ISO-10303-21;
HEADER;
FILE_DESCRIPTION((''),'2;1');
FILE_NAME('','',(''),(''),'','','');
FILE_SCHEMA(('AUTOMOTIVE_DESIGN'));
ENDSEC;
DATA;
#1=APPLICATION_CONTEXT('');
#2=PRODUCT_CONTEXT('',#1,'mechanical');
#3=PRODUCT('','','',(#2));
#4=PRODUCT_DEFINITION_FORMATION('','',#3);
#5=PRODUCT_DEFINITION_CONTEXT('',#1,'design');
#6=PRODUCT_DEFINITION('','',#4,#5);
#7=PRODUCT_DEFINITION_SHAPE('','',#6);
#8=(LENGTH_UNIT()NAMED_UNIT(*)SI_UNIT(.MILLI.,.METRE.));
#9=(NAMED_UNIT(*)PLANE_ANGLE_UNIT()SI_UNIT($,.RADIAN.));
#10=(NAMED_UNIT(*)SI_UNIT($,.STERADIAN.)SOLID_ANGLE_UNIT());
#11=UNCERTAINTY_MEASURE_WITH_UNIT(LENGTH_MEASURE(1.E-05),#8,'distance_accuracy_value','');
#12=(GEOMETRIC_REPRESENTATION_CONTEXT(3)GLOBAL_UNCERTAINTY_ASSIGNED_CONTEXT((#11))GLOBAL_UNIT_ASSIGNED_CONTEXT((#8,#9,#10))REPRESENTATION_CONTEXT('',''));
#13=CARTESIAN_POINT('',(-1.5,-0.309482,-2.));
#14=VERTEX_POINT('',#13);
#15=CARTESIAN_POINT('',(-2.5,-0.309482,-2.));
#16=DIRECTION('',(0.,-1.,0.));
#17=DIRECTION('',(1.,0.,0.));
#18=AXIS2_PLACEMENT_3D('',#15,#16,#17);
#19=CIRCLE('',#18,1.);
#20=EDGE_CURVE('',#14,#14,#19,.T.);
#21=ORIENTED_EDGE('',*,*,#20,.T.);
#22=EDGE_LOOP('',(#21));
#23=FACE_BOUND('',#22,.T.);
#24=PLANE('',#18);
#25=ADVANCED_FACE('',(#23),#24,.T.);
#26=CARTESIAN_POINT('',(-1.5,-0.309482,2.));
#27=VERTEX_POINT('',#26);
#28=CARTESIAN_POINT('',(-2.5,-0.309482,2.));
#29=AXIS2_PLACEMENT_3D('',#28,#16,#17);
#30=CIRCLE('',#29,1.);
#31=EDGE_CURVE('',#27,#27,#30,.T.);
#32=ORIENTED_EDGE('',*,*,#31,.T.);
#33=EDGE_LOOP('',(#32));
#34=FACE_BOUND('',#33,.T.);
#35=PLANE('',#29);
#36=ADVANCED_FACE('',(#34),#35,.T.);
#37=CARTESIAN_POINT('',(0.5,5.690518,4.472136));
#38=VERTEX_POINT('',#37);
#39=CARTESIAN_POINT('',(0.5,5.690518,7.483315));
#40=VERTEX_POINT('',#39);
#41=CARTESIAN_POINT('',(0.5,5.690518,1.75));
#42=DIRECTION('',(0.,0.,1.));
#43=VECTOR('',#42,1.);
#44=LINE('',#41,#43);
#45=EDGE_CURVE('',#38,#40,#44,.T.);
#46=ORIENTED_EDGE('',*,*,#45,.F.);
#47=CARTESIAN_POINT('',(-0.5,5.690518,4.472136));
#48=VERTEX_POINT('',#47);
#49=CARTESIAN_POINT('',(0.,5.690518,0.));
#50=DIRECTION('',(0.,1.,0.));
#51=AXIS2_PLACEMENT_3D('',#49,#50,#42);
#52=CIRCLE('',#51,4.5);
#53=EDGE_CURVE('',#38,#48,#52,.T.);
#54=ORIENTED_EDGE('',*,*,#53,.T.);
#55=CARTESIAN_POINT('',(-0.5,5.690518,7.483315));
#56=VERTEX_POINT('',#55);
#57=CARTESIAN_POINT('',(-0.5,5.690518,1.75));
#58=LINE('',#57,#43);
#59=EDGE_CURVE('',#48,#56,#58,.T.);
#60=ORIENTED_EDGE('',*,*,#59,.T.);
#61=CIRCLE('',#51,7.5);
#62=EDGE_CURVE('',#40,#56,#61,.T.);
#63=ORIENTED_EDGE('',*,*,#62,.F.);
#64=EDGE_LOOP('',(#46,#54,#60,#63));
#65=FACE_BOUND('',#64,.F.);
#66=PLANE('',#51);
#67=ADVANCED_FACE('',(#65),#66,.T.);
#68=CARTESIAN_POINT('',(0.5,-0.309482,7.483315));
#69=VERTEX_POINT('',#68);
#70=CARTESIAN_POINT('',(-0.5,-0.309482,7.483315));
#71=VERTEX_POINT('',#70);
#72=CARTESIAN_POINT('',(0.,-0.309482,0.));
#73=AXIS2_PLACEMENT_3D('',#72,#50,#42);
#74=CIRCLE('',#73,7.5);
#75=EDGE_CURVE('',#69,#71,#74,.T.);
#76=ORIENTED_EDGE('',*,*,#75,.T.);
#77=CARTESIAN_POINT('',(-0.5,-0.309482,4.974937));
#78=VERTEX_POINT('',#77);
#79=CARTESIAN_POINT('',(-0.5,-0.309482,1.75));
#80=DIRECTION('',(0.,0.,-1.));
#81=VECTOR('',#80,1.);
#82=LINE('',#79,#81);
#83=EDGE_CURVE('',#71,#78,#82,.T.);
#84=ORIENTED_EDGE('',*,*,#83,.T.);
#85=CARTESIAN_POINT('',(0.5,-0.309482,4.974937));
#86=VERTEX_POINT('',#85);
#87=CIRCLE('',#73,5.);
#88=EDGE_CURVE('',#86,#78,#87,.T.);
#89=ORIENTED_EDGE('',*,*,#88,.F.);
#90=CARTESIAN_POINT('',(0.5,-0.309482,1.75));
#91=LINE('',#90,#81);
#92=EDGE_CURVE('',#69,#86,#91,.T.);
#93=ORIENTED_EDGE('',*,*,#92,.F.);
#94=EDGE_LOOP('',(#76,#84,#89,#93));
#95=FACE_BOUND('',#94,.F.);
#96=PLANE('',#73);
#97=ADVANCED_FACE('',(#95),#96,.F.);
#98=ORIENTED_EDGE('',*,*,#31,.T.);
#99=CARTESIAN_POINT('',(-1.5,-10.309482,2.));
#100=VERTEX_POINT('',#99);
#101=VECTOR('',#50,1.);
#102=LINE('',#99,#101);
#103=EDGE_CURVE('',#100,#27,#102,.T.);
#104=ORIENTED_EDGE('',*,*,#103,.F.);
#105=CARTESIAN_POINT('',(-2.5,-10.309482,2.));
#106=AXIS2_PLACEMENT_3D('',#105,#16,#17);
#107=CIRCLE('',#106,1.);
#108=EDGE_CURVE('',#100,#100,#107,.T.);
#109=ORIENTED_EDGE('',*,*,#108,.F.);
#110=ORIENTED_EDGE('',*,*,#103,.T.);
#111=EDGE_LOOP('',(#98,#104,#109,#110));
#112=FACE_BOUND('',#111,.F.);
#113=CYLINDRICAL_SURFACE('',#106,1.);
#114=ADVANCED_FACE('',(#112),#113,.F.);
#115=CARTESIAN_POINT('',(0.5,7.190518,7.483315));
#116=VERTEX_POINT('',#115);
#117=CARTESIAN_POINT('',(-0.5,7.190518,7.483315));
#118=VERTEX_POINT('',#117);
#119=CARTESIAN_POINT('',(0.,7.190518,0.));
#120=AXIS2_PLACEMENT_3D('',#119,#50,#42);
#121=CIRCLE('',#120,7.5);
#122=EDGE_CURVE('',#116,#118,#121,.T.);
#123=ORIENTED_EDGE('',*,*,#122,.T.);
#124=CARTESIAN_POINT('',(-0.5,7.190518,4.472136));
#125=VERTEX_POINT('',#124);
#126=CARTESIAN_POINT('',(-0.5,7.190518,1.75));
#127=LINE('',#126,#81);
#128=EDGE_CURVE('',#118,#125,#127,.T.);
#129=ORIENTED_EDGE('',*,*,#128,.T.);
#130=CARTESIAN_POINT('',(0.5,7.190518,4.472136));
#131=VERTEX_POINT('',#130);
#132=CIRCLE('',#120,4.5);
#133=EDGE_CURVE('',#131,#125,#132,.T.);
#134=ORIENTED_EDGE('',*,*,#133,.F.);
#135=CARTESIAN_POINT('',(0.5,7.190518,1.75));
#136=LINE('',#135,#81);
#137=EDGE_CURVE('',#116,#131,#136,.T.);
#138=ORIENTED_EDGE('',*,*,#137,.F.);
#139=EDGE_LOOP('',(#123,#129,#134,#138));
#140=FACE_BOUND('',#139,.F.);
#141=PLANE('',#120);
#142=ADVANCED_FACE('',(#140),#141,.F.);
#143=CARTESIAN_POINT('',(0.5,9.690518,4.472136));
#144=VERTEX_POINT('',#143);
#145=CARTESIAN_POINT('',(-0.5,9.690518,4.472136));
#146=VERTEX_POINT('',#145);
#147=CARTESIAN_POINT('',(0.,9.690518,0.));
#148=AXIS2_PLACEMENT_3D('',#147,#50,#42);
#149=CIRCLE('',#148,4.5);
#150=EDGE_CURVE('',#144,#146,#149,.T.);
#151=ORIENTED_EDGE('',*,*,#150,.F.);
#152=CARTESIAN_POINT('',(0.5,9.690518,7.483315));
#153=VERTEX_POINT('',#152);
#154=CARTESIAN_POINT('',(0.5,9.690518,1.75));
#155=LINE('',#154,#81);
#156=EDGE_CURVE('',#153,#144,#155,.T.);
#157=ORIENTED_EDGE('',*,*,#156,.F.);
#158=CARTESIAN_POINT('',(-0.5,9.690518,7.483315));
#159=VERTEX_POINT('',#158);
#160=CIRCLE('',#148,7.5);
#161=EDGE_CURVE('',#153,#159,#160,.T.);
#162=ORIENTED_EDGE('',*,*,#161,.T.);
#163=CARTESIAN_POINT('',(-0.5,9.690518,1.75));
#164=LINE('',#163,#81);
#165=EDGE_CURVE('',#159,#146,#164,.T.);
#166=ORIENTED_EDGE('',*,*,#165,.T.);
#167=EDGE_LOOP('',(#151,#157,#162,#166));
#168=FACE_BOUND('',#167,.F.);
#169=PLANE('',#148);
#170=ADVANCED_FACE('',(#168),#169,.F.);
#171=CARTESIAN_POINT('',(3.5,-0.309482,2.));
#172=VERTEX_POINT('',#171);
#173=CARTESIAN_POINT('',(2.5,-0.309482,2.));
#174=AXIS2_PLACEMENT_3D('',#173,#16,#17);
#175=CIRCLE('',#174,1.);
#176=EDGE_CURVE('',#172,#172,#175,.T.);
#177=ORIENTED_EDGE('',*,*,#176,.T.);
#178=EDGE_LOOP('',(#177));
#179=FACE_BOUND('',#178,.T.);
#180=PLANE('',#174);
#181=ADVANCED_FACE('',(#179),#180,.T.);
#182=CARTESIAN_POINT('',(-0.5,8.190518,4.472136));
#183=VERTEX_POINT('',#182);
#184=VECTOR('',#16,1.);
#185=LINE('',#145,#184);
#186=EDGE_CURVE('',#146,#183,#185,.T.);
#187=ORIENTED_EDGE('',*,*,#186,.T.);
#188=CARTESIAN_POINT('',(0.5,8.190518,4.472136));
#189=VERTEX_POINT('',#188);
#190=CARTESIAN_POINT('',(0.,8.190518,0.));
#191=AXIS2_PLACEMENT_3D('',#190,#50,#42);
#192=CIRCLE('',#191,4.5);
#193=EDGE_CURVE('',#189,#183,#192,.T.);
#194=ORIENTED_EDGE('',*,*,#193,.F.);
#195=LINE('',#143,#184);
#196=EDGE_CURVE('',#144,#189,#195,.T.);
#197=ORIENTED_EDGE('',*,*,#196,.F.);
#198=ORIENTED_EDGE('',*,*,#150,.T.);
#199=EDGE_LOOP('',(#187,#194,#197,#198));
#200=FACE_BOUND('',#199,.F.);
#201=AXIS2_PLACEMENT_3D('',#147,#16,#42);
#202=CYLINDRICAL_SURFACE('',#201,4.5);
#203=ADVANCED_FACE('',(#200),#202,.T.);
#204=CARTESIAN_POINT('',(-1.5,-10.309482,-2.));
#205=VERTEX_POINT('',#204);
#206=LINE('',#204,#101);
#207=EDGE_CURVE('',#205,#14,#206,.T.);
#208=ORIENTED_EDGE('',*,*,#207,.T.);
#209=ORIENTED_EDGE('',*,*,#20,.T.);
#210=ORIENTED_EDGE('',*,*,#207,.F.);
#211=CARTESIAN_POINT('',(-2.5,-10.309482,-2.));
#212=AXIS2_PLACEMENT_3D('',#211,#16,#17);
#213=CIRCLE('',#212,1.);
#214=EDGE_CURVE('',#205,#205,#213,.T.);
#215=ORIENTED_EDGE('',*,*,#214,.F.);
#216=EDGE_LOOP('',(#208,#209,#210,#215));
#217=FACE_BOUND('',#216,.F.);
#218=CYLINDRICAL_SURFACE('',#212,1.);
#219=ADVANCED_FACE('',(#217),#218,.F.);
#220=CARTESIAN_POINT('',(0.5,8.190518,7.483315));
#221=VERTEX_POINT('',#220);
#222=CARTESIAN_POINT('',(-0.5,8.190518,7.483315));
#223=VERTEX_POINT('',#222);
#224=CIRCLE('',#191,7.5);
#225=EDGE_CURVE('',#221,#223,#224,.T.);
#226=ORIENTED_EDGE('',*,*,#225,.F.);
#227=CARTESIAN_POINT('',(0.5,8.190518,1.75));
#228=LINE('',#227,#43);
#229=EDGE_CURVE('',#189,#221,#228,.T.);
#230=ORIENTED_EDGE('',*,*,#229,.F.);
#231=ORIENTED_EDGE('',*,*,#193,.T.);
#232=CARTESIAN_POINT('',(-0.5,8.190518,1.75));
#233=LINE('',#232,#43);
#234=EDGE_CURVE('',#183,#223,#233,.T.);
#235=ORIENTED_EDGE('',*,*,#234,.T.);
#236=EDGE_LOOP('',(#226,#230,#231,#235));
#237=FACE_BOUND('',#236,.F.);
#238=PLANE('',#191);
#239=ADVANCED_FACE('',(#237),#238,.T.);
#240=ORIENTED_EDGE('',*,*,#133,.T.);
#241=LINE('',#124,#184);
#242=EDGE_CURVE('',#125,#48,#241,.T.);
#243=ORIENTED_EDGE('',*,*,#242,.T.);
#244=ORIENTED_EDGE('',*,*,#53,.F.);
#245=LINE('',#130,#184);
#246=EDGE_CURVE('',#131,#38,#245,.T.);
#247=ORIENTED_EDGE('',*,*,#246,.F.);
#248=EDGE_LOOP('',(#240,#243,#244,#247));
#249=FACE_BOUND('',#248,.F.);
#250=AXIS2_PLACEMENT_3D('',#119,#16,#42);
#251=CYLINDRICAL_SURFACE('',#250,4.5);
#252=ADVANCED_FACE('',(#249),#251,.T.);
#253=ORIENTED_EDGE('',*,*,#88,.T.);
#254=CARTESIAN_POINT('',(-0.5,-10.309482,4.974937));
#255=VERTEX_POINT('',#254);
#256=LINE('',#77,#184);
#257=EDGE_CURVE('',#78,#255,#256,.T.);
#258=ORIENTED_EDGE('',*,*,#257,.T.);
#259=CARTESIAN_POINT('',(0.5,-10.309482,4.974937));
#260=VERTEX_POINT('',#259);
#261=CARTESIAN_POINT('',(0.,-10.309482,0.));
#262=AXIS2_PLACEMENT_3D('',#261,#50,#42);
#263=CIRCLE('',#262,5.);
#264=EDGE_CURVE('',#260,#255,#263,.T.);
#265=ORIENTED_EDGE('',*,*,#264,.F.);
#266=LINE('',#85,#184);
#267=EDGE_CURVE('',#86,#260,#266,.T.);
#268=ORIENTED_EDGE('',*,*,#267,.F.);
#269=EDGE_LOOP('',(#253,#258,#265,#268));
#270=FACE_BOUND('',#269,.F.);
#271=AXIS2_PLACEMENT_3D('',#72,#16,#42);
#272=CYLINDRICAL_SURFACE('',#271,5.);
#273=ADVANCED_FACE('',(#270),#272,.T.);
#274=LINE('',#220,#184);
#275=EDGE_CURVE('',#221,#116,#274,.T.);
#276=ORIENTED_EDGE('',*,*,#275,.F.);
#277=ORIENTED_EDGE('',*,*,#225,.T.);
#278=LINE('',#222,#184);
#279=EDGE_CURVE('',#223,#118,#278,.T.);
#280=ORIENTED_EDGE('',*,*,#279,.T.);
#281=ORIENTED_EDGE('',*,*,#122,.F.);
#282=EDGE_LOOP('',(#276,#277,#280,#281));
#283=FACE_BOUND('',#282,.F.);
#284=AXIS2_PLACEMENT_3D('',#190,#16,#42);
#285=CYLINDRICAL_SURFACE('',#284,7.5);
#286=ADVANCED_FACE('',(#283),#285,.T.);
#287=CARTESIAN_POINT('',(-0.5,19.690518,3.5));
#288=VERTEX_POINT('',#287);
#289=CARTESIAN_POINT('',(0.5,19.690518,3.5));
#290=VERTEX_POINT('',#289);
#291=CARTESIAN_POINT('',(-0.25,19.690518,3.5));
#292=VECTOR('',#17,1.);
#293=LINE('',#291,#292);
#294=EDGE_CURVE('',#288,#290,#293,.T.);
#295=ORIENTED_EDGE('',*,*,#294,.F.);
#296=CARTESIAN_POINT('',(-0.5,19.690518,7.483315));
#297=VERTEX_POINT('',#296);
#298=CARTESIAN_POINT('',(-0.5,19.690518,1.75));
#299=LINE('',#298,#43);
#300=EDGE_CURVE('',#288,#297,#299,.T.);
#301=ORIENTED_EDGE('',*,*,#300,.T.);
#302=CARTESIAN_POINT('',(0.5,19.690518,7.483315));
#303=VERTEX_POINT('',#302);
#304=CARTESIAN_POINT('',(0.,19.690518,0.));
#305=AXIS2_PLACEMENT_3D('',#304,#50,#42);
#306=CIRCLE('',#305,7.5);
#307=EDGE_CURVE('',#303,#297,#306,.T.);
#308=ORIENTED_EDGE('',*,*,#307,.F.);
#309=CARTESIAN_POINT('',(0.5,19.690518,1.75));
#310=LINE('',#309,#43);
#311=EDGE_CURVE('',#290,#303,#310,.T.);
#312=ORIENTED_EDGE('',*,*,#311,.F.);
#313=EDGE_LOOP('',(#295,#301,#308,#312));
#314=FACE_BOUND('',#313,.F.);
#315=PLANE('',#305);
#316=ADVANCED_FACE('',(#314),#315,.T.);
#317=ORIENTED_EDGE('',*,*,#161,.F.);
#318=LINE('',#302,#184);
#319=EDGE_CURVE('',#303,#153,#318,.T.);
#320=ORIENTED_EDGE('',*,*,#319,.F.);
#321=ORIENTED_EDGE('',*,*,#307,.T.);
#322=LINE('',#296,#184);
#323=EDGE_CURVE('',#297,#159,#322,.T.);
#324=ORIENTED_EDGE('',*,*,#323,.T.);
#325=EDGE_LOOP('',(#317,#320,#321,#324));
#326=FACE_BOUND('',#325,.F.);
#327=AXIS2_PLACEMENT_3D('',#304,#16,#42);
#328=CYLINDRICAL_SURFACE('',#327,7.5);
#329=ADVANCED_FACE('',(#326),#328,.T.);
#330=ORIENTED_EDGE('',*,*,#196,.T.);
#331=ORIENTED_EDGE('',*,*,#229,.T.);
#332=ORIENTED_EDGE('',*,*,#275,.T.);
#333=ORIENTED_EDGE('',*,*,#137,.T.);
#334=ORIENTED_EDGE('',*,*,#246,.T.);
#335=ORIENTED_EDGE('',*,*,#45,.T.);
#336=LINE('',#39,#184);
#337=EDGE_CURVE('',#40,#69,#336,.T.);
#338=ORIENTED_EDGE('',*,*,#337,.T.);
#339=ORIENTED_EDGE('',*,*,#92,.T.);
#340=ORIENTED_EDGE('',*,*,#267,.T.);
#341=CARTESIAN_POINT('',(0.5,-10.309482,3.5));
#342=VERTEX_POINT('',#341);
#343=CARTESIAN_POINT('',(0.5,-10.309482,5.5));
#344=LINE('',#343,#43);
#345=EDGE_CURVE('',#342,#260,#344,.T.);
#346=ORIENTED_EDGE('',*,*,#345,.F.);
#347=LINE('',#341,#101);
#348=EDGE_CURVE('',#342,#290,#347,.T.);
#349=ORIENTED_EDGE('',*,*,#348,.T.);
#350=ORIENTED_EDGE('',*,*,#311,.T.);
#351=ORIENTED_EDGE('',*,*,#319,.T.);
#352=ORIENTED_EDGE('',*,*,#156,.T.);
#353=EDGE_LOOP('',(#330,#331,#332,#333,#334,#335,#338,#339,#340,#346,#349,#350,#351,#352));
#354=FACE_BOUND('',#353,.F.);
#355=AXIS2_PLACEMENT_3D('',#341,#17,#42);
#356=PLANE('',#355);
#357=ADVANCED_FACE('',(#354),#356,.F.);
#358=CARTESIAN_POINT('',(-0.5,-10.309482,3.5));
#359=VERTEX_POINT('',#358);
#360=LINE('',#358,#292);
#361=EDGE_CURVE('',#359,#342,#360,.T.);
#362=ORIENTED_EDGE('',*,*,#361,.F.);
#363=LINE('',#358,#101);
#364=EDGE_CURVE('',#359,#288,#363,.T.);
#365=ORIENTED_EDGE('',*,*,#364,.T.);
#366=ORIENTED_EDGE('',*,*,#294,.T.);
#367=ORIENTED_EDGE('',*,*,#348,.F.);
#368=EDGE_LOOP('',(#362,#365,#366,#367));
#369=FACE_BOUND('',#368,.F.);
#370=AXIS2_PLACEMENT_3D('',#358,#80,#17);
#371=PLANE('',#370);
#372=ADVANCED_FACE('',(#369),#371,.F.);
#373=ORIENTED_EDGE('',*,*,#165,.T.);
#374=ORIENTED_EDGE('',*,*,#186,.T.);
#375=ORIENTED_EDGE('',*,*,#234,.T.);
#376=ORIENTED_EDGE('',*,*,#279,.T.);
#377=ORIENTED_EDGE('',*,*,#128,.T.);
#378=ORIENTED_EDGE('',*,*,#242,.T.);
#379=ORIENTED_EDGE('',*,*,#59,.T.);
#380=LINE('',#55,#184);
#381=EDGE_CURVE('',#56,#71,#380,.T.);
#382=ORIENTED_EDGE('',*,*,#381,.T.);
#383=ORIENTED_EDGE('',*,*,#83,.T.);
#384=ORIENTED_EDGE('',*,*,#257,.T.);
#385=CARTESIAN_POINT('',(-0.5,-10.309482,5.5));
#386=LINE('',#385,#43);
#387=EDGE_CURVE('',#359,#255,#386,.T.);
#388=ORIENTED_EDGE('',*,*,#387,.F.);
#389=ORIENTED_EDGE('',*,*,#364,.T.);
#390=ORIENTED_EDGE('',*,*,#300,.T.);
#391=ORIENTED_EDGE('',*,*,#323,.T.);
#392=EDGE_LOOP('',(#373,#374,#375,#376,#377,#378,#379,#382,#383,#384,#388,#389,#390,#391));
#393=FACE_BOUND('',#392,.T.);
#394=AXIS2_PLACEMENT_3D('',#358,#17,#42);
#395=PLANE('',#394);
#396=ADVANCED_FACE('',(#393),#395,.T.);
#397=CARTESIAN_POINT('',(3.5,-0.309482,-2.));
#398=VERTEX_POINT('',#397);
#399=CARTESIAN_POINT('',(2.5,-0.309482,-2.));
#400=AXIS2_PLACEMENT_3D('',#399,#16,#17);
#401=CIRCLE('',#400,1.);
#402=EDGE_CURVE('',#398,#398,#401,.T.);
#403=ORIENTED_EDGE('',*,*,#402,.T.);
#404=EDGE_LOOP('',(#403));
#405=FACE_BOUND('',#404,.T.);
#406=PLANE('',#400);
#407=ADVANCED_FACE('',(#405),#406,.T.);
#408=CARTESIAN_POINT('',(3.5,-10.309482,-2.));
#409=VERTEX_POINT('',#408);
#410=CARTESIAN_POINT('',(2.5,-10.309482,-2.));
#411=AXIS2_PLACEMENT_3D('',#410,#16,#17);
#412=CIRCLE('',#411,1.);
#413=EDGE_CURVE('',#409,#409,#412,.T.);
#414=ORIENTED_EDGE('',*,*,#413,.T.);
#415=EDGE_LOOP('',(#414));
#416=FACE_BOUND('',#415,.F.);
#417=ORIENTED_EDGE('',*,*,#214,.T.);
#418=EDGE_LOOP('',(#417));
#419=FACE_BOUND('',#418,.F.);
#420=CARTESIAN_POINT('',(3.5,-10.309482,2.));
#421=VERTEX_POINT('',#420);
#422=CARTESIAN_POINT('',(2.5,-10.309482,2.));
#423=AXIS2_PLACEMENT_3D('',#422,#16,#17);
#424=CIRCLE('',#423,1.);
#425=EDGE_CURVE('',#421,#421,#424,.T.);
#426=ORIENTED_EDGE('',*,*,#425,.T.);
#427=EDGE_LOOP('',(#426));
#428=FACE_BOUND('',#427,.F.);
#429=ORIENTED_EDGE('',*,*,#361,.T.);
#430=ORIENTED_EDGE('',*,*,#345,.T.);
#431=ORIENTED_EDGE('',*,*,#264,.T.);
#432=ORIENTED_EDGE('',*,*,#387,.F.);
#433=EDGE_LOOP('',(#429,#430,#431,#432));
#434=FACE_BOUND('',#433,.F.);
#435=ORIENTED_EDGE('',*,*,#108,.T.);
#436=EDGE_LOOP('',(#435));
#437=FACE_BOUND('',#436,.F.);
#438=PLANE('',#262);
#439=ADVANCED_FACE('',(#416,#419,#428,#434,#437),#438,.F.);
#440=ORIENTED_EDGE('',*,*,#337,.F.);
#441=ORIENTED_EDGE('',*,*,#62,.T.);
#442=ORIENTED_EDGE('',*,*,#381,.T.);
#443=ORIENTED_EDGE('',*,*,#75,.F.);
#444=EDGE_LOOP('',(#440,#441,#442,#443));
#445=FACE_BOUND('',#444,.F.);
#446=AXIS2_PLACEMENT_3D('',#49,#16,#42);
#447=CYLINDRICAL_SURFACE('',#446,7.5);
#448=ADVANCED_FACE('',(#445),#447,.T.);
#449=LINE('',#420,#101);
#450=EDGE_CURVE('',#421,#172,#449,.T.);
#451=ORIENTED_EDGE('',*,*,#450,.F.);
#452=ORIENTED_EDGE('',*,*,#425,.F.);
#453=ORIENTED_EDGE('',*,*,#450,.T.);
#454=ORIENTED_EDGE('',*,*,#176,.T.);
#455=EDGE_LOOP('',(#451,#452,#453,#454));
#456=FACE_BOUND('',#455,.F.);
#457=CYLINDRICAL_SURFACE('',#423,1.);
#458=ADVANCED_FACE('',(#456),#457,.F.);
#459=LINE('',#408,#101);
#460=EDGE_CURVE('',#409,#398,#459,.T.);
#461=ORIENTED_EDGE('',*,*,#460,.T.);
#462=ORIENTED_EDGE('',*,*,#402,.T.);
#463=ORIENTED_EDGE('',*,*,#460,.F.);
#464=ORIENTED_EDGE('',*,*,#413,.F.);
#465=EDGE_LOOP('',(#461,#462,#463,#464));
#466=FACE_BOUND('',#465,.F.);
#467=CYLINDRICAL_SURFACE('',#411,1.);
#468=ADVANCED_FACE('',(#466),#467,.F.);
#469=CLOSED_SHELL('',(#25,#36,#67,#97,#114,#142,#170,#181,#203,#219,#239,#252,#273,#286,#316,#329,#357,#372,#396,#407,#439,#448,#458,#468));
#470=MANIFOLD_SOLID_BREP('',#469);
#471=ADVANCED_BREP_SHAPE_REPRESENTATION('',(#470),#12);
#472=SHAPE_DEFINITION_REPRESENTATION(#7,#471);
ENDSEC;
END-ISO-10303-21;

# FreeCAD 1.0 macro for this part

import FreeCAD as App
import Part
import Sketcher
from FreeCAD import Vector
Q = App.Units.Quantity


def add_polygon(sketch, points):
    """Adds a closed chain of lines whose ends are joined by coincident constraints."""
    first, n = sketch.GeometryCount, len(points)
    for a, b in zip(points, points[1:] + points[:1]):
        sketch.addGeometry(Part.LineSegment(App.Vector(*a, 0), App.Vector(*b, 0)), False)
    for i in range(n):
        sketch.addConstraint(Sketcher.Constraint("Coincident", first + i, 2, first + (i + 1) % n, 1))

doc = App.newDocument("Part")
body = doc.addObject("PartDesign::Body", "Body")

# Sketch on YZ plane
sketch1 = doc.addObject("Sketcher::SketchObject", "Sketch")
body.addObject(sketch1)
sketch1.AttachmentSupport = (doc.YZ_Plane, [""])
sketch1.MapMode = "FlatFace"
add_polygon(sketch1, [(5.7, 7.5), (-0.3, 7.5), (-0.3, 5), (-10.3, 5), (-10.3, 0), (19.7, 0), (19.7, 7.5), (9.7, 7.5), (9.7, 4.5), (8.2, 4.5), (8.2, 7.5), (7.2, 7.5), (7.2, 4.5), (5.7, 4.5)])  # lines 0-13
sketch1.addConstraint([
    Sketcher.Constraint("Horizontal", 0),
    Sketcher.Constraint("Vertical", 1),
    Sketcher.Constraint("Horizontal", 2),
    Sketcher.Constraint("Vertical", 3),
    Sketcher.Constraint("Horizontal", 4),
    Sketcher.Constraint("Vertical", 5),
    Sketcher.Constraint("Horizontal", 6),
    Sketcher.Constraint("Vertical", 7),
    Sketcher.Constraint("Horizontal", 8),
    Sketcher.Constraint("Vertical", 9),
    Sketcher.Constraint("Horizontal", 10),
    Sketcher.Constraint("Vertical", 11),
    Sketcher.Constraint("Horizontal", 12),
    Sketcher.Constraint("Vertical", 13),
    Sketcher.Constraint("PointOnObject", 3, 2, -1),
    Sketcher.Constraint("Horizontal", 0, 2, 5, 2),
    Sketcher.Constraint("Horizontal", 6, 2, 9, 2),
    Sketcher.Constraint("Horizontal", 8, 2, 11, 2),
    Sketcher.Constraint("Equal", 2, 6),
    Sketcher.Constraint("Equal", 8, 12),
    Sketcher.Constraint("DistanceX", 0, 2, 0, 1, Q("6 mm")),
    Sketcher.Constraint("DistanceX", 2, 2, 2, 1, Q("10 mm")),
    Sketcher.Constraint("DistanceX", 4, 1, 4, 2, Q("30 mm")),
    Sketcher.Constraint("DistanceX", 10, 2, 10, 1, Q("1 mm")),
    Sketcher.Constraint("DistanceY", 3, 2, 3, 1, Q("5 mm")),
    Sketcher.Constraint("DistanceY", 7, 2, 7, 1, Q("3 mm")),
    Sketcher.Constraint("DistanceY", 1, 2, 1, 1, Q("2.5 mm")),
    Sketcher.Constraint("DistanceX", 2, 2, -1, 1, Q("10.309482 mm")),
])
revolution = doc.addObject("PartDesign::Revolution", "Revolution")
body.addObject(revolution)
revolution.Profile = sketch1
revolution.ReferenceAxis = (sketch1, ["H_Axis"])
revolution.Angle = 360

# Sketch on XZ plane
sketch2 = doc.addObject("Sketcher::SketchObject", "Sketch001")
body.addObject(sketch2)
sketch2.AttachmentSupport = (doc.XZ_Plane, [""])
sketch2.MapMode = "FlatFace"
sketch2.AttachmentOffset = App.Placement(Vector(0, 0, 10.309482), App.Rotation())
sketch2.addGeometry([
    Part.Circle(Vector(-2.5, 2, 0), Vector(0, 0, 1), 1),
    Part.Circle(Vector(2.5, 2, 0), Vector(0, 0, 1), 1),
    Part.Circle(Vector(-2.5, -2, 0), Vector(0, 0, 1), 1),
    Part.Circle(Vector(2.5, -2, 0), Vector(0, 0, 1), 1),
], False)
sketch2.addConstraint([
    Sketcher.Constraint("Equal", 0, 1),
    Sketcher.Constraint("Equal", 1, 2),
    Sketcher.Constraint("Equal", 2, 3),
    Sketcher.Constraint("Symmetric", 1, 3, 2, 3, -1, 1),
    Sketcher.Constraint("Symmetric", 0, 3, 3, 3, -1, 1),
    Sketcher.Constraint("Symmetric", 0, 3, 1, 3, -2),
    Sketcher.Constraint("Diameter", 0, Q("2 mm")),
    Sketcher.Constraint("DistanceY", -1, 1, 0, 3, Q("2 mm")),
    Sketcher.Constraint("DistanceX", 0, 3, 1, 3, Q("5 mm")),
])
pocket1 = doc.addObject("PartDesign::Pocket", "Pocket")
body.addObject(pocket1)
pocket1.Profile = sketch2
pocket1.Length = 10

# Sketch on XZ plane
sketch3 = doc.addObject("Sketcher::SketchObject", "Sketch002")
body.addObject(sketch3)
sketch3.AttachmentSupport = (doc.XZ_Plane, [""])
sketch3.MapMode = "FlatFace"
sketch3.AttachmentOffset = App.Placement(Vector(0, 0, 10.309482), App.Rotation())
add_polygon(sketch3, [(-0.5, 7.5), (-0.5, 3.5), (0.5, 3.5), (0.5, 7.5)])  # lines 0-3
sketch3.addConstraint([
    Sketcher.Constraint("Vertical", 0),
    Sketcher.Constraint("Horizontal", 1),
    Sketcher.Constraint("Vertical", 2),
    Sketcher.Constraint("Horizontal", 3),
    Sketcher.Constraint("DistanceX", 1, 1, 1, 2, Q("1 mm")),
    Sketcher.Constraint("DistanceY", 0, 2, 0, 1, Q("4 mm")),
    Sketcher.Constraint("DistanceX", 0, 2, -1, 1, Q("0.5 mm")),
    Sketcher.Constraint("DistanceY", -1, 1, 0, 2, Q("3.5 mm")),
])
pocket2 = doc.addObject("PartDesign::Pocket", "Pocket001")
body.addObject(pocket2)
pocket2.Profile = sketch3
pocket2.Type = "ThroughAll"

doc.recompute()
